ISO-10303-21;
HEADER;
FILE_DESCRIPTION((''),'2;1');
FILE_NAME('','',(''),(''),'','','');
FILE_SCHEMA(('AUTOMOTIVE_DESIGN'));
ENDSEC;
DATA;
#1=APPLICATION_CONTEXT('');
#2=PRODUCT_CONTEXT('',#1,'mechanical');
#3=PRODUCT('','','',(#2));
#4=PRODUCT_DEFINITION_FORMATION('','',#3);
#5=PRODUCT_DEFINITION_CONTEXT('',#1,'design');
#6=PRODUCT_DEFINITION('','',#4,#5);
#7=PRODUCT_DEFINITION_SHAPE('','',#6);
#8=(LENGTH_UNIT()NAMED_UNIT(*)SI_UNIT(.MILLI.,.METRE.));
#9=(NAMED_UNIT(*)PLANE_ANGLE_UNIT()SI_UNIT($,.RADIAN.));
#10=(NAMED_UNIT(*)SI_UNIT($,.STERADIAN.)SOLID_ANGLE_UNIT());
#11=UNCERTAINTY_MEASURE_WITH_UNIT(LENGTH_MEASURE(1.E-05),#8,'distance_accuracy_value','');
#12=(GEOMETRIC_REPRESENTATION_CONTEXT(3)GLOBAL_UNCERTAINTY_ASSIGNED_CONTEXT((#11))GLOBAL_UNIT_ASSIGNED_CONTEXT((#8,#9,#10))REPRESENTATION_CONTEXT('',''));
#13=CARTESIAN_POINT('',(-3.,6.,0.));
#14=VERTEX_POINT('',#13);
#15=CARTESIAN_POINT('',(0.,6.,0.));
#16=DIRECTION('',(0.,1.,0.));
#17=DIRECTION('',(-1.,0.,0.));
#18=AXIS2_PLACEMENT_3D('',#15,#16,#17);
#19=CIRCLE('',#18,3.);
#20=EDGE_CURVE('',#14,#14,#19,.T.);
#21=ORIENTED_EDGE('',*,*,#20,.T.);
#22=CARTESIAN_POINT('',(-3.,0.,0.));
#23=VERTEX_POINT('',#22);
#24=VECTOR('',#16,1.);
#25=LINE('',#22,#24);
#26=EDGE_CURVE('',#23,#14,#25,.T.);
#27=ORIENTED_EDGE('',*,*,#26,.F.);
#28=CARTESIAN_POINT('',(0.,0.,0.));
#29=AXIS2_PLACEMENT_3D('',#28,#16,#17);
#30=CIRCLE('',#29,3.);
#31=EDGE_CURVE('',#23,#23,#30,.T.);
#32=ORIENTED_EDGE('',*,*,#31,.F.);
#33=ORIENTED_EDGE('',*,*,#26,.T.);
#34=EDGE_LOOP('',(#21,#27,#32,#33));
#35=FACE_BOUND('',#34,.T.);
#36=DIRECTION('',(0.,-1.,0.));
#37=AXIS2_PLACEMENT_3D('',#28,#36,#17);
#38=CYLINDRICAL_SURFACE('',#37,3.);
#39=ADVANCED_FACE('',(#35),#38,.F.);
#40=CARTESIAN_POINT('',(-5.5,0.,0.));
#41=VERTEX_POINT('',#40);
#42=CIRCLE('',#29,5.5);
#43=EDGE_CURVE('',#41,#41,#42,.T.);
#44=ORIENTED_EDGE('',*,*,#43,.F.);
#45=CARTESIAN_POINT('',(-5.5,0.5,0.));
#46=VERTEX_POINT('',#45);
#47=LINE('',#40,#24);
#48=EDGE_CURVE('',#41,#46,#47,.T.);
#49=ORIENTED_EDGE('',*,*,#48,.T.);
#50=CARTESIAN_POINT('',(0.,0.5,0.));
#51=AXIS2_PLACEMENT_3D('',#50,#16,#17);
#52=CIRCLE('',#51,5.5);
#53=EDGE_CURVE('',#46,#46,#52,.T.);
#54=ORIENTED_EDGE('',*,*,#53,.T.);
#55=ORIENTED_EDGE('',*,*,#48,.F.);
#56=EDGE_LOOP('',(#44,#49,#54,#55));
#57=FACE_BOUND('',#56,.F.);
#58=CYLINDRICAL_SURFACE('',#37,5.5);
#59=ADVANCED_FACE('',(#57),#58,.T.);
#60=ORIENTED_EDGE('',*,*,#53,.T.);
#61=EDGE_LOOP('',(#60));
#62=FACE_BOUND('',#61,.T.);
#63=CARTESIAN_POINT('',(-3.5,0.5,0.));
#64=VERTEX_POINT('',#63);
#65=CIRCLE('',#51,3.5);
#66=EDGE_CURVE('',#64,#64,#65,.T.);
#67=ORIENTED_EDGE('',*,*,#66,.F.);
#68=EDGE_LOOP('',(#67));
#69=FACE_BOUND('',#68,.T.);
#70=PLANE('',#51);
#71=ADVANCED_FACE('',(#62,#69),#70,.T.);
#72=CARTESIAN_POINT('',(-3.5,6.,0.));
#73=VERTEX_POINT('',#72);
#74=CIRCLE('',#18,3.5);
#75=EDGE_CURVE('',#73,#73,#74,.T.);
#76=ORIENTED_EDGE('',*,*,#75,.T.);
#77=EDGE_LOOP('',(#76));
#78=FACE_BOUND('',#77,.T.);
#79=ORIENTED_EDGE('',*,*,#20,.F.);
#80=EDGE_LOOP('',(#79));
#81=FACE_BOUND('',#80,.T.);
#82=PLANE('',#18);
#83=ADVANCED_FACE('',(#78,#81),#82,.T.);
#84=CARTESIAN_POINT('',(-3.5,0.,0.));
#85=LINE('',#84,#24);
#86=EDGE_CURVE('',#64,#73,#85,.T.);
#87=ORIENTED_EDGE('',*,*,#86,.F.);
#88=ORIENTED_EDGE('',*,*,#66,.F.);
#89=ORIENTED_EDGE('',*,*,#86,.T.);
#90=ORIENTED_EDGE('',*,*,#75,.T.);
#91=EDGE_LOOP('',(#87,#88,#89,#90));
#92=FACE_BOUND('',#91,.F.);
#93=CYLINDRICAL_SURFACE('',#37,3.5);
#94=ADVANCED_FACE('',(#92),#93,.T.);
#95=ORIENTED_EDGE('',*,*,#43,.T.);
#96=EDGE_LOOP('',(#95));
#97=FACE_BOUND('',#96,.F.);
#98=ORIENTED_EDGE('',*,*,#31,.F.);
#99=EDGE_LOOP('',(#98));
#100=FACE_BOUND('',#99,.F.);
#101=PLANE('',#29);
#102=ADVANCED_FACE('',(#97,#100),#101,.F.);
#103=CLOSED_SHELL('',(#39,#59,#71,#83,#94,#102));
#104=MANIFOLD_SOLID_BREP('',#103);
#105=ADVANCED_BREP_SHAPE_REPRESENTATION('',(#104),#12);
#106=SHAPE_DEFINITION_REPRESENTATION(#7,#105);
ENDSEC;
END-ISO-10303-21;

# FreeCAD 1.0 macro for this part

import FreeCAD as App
import Part
import Sketcher

V = App.Vector
Q = App.Units.Quantity

doc = App.newDocument("Part")
body = doc.addObject("PartDesign::Body", "Body")

sketch1 = body.newObject("Sketcher::SketchObject", "Sketch")
sketch1.AttachmentSupport = (doc.getObject("XZ_Plane"), [""])
sketch1.MapMode = "FlatFace"
sketch1.addGeometry(Part.Circle(V(0, 0, 0), V(0, 0, 1), 5.5), False)
sketch1.addGeometry(Part.Circle(V(0, 0, 0), V(0, 0, 1), 3.5), False)
sketch1.addConstraint(Sketcher.Constraint("Coincident", 0, 3, -1, 1))
sketch1.addConstraint(Sketcher.Constraint("Coincident", 1, 3, -1, 1))
sketch1.addConstraint(Sketcher.Constraint("Diameter", 0, Q("11 mm")))
sketch1.addConstraint(Sketcher.Constraint("Diameter", 1, Q("7 mm")))
pad1 = body.newObject("PartDesign::Pad", "Pad")
pad1.Profile = sketch1
pad1.Length = 0.5
pad1.Reversed = True

sketch2 = body.newObject("Sketcher::SketchObject", "Sketch001")
sketch2.AttachmentSupport = (doc.getObject("XZ_Plane"), [""])
sketch2.MapMode = "FlatFace"
sketch2.addGeometry(Part.Circle(V(0, 0, 0), V(0, 0, 1), 3.5), False)
sketch2.addGeometry(Part.Circle(V(0, 0, 0), V(0, 0, 1), 3), False)
sketch2.addConstraint(Sketcher.Constraint("Coincident", 0, 3, -1, 1))
sketch2.addConstraint(Sketcher.Constraint("Coincident", 1, 3, -1, 1))
sketch2.addConstraint(Sketcher.Constraint("Diameter", 0, Q("7 mm")))
sketch2.addConstraint(Sketcher.Constraint("Diameter", 1, Q("6 mm")))
pad2 = body.newObject("PartDesign::Pad", "Pad001")
pad2.Profile = sketch2
pad2.Length = 6
pad2.Reversed = True

doc.recompute()
